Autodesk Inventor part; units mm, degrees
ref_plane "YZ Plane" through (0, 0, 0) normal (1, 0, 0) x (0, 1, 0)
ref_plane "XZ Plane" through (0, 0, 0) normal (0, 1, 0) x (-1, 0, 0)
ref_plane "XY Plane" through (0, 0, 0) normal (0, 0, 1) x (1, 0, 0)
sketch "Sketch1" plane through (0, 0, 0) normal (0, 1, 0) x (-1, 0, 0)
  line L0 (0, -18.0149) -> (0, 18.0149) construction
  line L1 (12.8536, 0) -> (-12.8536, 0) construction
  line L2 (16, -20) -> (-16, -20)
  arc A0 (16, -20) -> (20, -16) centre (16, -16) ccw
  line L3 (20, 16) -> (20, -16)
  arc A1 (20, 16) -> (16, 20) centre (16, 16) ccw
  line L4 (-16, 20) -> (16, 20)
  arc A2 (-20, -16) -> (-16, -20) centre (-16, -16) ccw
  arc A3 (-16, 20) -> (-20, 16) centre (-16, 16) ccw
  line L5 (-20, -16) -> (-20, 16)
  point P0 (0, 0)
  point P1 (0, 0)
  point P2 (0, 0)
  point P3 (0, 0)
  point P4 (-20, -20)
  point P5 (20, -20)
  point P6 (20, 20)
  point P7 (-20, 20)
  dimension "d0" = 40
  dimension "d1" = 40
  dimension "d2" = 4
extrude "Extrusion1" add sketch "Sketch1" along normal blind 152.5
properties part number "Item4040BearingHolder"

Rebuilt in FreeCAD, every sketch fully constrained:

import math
import FreeCAD as App
import Part
import Sketcher
from FreeCAD import Vector
Q = App.Units.Quantity

doc = App.newDocument("Part")
body = doc.addObject("PartDesign::Body", "Body")

# Sketch on XZ plane
sketch1 = doc.addObject("Sketcher::SketchObject", "Sketch")
body.addObject(sketch1)
sketch1.AttachmentSupport = (doc.XZ_Plane, [""])
sketch1.MapMode = "FlatFace"
sketch1.addGeometry([
    Part.LineSegment(Vector(16, -20, 0), Vector(-16, -20, 0)),  # 0
    Part.ArcOfCircle(Part.Circle(Vector(-16, -16, 0), Vector(0, 0, 1), 4), math.radians(180), math.radians(270)),  # 1
    Part.LineSegment(Vector(-20, -16, 0), Vector(-20, 16, 0)),  # 2
    Part.ArcOfCircle(Part.Circle(Vector(-16, 16, 0), Vector(0, 0, 1), 4), math.radians(90), math.radians(180)),  # 3
    Part.LineSegment(Vector(-16, 20, 0), Vector(16, 20, 0)),  # 4
    Part.ArcOfCircle(Part.Circle(Vector(16, 16, 0), Vector(0, 0, 1), 4), math.radians(0), math.radians(90)),  # 5
    Part.LineSegment(Vector(20, 16, 0), Vector(20, -16, 0)),  # 6
    Part.ArcOfCircle(Part.Circle(Vector(16, -16, 0), Vector(0, 0, 1), 4), math.radians(-90), math.radians(0)),  # 7
], False)
sketch1.addConstraint([
    Sketcher.Constraint("Tangent", 0, 2, 1, 2),
    Sketcher.Constraint("Tangent", 1, 1, 2, 1),
    Sketcher.Constraint("Tangent", 2, 2, 3, 2),
    Sketcher.Constraint("Tangent", 3, 1, 4, 1),
    Sketcher.Constraint("Tangent", 4, 2, 5, 2),
    Sketcher.Constraint("Tangent", 5, 1, 6, 1),
    Sketcher.Constraint("Tangent", 6, 2, 7, 2),
    Sketcher.Constraint("Tangent", 7, 1, 0, 1),
    Sketcher.Constraint("Horizontal", 0),
    Sketcher.Constraint("Vertical", 2),
    Sketcher.Constraint("Horizontal", 4),
    Sketcher.Constraint("Vertical", 6),
    Sketcher.Constraint("Equal", 1, 3),
    Sketcher.Constraint("Equal", 3, 5),
    Sketcher.Constraint("Equal", 5, 7),
    Sketcher.Constraint("Symmetric", 1, 3, 5, 3, -1, 1),
    Sketcher.Constraint("Equal", 4, 2),
    Sketcher.Constraint("Radius", 1, Q("4 mm")),
    Sketcher.Constraint("DistanceX", 0, 2, 0, 1, Q("32 mm")),
])
pad1 = doc.addObject("PartDesign::Pad", "Pad")
body.addObject(pad1)
pad1.Profile = sketch1
pad1.Length = 152.5
pad1.Reversed = True

doc.recompute()
